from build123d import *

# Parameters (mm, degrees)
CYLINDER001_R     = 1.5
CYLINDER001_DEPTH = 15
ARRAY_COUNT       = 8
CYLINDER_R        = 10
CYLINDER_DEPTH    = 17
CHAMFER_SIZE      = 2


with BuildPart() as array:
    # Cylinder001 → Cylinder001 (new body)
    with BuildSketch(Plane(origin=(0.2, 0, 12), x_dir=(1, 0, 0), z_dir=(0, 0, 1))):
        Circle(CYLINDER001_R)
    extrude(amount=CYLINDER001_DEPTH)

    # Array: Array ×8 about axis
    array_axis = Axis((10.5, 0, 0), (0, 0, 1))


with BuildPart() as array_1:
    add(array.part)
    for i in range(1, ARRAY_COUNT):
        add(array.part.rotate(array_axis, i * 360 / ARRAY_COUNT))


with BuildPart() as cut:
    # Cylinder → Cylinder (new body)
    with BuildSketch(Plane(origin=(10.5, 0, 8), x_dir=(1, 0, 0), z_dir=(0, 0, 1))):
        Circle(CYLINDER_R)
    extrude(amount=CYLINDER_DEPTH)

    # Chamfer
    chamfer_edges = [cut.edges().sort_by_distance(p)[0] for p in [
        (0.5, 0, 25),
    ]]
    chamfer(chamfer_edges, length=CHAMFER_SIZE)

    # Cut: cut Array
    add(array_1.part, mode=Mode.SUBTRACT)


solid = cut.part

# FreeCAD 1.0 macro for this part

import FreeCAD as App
import Part
import Sketcher

V = App.Vector


def edges_at(feature, points):
    """Names of the edges that pass closest to the given points."""
    edges = feature.Shape.Edges
    near = lambda p: min(range(len(edges)), key=lambda i: edges[i].distToShape(Part.Vertex(*p))[0])
    return sorted({f"Edge{near(p) + 1}" for p in points})

doc = App.newDocument("Part")
params = doc.addObject("Spreadsheet::Sheet", "Params")
for row, (alias, value) in enumerate([
    ("sketch1_diameter", "3 mm"),
    ("pad1_length", "15 mm"),
    ("sketch2_diameter", "20 mm"),
    ("pad2_length", "17 mm"),
    ("chamfer_size", "2 mm"),
], start=1):
    params.set(f"A{row}", alias)
    params.set(f"B{row}", "=" + value)
    params.setAlias(f"B{row}", alias)

body = doc.addObject("PartDesign::Body", "Body")

# Sketch on XY plane
sketch1 = body.newObject("Sketcher::SketchObject", "Sketch")
sketch1.AttachmentSupport = (doc.getObject("XY_Plane"), [""])
sketch1.MapMode = "FlatFace"
sketch1.AttachmentOffset = App.Placement(V(0, 0, 12), App.Rotation())
sketch1.addGeometry(Part.Circle(V(0.2, 0, 0), V(0, 0, 1), 1.5), False)
sketch1.addConstraint(Sketcher.Constraint("PointOnObject", 0, 3, -1))
sketch1.addConstraint(Sketcher.Constraint("Diameter", 0, 3.0))
sketch1.addConstraint(Sketcher.Constraint("DistanceX", -1, 1, 0, 3, 0.2))
sketch1.setExpression("Constraints[1]", "Params.sketch1_diameter")
pad1 = body.newObject("PartDesign::Pad", "Pad")
pad1.Profile = sketch1
pad1.setExpression("Length", "Params.pad1_length")
body2 = doc.addObject("PartDesign::Body", "Body001")
body2.AllowCompound = True
doc.recompute()

body2.BaseFeature = body
doc.recompute()

body3 = doc.addObject("PartDesign::Body", "Body002")
body3.BaseFeature = body
body3.Placement = App.Placement(V(3.075379, -7.424621, 0), App.Rotation(V(0, 0, 1), 45))
boolean = body2.newObject("PartDesign::Boolean", "Boolean")
boolean.Type = "Fuse"
boolean.addObjects([body3])
doc.recompute()

body4 = doc.addObject("PartDesign::Body", "Body003")
body4.BaseFeature = body
body4.Placement = App.Placement(V(10.5, -10.5, 0), App.Rotation(V(0, 0, 1), 90))
boolean2 = body2.newObject("PartDesign::Boolean", "Boolean001")
boolean2.Type = "Fuse"
boolean2.addObjects([body4])
doc.recompute()

body5 = doc.addObject("PartDesign::Body", "Body004")
body5.BaseFeature = body
body5.Placement = App.Placement(V(17.924621, -7.424621, 0), App.Rotation(V(0, 0, 1), 135))
boolean3 = body2.newObject("PartDesign::Boolean", "Boolean002")
boolean3.Type = "Fuse"
boolean3.addObjects([body5])
doc.recompute()

body6 = doc.addObject("PartDesign::Body", "Body005")
body6.BaseFeature = body
body6.Placement = App.Placement(V(21, 0, 0), App.Rotation(V(0, 0, 1), 180))
boolean4 = body2.newObject("PartDesign::Boolean", "Boolean003")
boolean4.Type = "Fuse"
boolean4.addObjects([body6])
doc.recompute()

body7 = doc.addObject("PartDesign::Body", "Body006")
body7.BaseFeature = body
body7.Placement = App.Placement(V(17.924621, 7.424621, 0), App.Rotation(V(0, 0, 1), 225))
boolean5 = body2.newObject("PartDesign::Boolean", "Boolean004")
boolean5.Type = "Fuse"
boolean5.addObjects([body7])
doc.recompute()

body8 = doc.addObject("PartDesign::Body", "Body007")
body8.BaseFeature = body
body8.Placement = App.Placement(V(10.5, 10.5, 0), App.Rotation(V(0, 0, 1), 270))
boolean6 = body2.newObject("PartDesign::Boolean", "Boolean005")
boolean6.Type = "Fuse"
boolean6.addObjects([body8])
doc.recompute()

body.Placement = App.Placement(V(3.075379, 7.424621, 0), App.Rotation(V(0, 0, 1), 315))
boolean7 = body2.newObject("PartDesign::Boolean", "Boolean006")
boolean7.Type = "Fuse"
boolean7.addObjects([body])
body9 = doc.addObject("PartDesign::Body", "Body008")

# Sketch on XY plane
sketch2 = body9.newObject("Sketcher::SketchObject", "Sketch001")
sketch2.AttachmentSupport = (doc.getObject("XY_Plane008"), [""])
sketch2.MapMode = "FlatFace"
sketch2.AttachmentOffset = App.Placement(V(0, 0, 8), App.Rotation())
sketch2.addGeometry(Part.Circle(V(10, 0, 0), V(0, 0, 1), 10), False)
sketch2.addConstraint(Sketcher.Constraint("PointOnObject", 0, 3, -1))
sketch2.addConstraint(Sketcher.Constraint("Diameter", 0, 20.0))
sketch2.addConstraint(Sketcher.Constraint("DistanceX", -1, 1, 0, 3, 10.5))
sketch2.setExpression("Constraints[1]", "Params.sketch2_diameter")
pad2 = body9.newObject("PartDesign::Pad", "Pad001")
pad2.Profile = sketch2
pad2.setExpression("Length", "Params.pad2_length")
doc.recompute()

chamfer = body9.newObject("PartDesign::Chamfer", "Chamfer")
chamfer.Base = (pad2, edges_at(pad2, [(0.5, 0, 25)]))
chamfer.setExpression("Size", "Params.chamfer_size")
doc.recompute()

boolean8 = body9.newObject("PartDesign::Boolean", "Boolean007")
boolean8.Type = "Cut"
boolean8.addObjects([body2])

doc.recompute()
